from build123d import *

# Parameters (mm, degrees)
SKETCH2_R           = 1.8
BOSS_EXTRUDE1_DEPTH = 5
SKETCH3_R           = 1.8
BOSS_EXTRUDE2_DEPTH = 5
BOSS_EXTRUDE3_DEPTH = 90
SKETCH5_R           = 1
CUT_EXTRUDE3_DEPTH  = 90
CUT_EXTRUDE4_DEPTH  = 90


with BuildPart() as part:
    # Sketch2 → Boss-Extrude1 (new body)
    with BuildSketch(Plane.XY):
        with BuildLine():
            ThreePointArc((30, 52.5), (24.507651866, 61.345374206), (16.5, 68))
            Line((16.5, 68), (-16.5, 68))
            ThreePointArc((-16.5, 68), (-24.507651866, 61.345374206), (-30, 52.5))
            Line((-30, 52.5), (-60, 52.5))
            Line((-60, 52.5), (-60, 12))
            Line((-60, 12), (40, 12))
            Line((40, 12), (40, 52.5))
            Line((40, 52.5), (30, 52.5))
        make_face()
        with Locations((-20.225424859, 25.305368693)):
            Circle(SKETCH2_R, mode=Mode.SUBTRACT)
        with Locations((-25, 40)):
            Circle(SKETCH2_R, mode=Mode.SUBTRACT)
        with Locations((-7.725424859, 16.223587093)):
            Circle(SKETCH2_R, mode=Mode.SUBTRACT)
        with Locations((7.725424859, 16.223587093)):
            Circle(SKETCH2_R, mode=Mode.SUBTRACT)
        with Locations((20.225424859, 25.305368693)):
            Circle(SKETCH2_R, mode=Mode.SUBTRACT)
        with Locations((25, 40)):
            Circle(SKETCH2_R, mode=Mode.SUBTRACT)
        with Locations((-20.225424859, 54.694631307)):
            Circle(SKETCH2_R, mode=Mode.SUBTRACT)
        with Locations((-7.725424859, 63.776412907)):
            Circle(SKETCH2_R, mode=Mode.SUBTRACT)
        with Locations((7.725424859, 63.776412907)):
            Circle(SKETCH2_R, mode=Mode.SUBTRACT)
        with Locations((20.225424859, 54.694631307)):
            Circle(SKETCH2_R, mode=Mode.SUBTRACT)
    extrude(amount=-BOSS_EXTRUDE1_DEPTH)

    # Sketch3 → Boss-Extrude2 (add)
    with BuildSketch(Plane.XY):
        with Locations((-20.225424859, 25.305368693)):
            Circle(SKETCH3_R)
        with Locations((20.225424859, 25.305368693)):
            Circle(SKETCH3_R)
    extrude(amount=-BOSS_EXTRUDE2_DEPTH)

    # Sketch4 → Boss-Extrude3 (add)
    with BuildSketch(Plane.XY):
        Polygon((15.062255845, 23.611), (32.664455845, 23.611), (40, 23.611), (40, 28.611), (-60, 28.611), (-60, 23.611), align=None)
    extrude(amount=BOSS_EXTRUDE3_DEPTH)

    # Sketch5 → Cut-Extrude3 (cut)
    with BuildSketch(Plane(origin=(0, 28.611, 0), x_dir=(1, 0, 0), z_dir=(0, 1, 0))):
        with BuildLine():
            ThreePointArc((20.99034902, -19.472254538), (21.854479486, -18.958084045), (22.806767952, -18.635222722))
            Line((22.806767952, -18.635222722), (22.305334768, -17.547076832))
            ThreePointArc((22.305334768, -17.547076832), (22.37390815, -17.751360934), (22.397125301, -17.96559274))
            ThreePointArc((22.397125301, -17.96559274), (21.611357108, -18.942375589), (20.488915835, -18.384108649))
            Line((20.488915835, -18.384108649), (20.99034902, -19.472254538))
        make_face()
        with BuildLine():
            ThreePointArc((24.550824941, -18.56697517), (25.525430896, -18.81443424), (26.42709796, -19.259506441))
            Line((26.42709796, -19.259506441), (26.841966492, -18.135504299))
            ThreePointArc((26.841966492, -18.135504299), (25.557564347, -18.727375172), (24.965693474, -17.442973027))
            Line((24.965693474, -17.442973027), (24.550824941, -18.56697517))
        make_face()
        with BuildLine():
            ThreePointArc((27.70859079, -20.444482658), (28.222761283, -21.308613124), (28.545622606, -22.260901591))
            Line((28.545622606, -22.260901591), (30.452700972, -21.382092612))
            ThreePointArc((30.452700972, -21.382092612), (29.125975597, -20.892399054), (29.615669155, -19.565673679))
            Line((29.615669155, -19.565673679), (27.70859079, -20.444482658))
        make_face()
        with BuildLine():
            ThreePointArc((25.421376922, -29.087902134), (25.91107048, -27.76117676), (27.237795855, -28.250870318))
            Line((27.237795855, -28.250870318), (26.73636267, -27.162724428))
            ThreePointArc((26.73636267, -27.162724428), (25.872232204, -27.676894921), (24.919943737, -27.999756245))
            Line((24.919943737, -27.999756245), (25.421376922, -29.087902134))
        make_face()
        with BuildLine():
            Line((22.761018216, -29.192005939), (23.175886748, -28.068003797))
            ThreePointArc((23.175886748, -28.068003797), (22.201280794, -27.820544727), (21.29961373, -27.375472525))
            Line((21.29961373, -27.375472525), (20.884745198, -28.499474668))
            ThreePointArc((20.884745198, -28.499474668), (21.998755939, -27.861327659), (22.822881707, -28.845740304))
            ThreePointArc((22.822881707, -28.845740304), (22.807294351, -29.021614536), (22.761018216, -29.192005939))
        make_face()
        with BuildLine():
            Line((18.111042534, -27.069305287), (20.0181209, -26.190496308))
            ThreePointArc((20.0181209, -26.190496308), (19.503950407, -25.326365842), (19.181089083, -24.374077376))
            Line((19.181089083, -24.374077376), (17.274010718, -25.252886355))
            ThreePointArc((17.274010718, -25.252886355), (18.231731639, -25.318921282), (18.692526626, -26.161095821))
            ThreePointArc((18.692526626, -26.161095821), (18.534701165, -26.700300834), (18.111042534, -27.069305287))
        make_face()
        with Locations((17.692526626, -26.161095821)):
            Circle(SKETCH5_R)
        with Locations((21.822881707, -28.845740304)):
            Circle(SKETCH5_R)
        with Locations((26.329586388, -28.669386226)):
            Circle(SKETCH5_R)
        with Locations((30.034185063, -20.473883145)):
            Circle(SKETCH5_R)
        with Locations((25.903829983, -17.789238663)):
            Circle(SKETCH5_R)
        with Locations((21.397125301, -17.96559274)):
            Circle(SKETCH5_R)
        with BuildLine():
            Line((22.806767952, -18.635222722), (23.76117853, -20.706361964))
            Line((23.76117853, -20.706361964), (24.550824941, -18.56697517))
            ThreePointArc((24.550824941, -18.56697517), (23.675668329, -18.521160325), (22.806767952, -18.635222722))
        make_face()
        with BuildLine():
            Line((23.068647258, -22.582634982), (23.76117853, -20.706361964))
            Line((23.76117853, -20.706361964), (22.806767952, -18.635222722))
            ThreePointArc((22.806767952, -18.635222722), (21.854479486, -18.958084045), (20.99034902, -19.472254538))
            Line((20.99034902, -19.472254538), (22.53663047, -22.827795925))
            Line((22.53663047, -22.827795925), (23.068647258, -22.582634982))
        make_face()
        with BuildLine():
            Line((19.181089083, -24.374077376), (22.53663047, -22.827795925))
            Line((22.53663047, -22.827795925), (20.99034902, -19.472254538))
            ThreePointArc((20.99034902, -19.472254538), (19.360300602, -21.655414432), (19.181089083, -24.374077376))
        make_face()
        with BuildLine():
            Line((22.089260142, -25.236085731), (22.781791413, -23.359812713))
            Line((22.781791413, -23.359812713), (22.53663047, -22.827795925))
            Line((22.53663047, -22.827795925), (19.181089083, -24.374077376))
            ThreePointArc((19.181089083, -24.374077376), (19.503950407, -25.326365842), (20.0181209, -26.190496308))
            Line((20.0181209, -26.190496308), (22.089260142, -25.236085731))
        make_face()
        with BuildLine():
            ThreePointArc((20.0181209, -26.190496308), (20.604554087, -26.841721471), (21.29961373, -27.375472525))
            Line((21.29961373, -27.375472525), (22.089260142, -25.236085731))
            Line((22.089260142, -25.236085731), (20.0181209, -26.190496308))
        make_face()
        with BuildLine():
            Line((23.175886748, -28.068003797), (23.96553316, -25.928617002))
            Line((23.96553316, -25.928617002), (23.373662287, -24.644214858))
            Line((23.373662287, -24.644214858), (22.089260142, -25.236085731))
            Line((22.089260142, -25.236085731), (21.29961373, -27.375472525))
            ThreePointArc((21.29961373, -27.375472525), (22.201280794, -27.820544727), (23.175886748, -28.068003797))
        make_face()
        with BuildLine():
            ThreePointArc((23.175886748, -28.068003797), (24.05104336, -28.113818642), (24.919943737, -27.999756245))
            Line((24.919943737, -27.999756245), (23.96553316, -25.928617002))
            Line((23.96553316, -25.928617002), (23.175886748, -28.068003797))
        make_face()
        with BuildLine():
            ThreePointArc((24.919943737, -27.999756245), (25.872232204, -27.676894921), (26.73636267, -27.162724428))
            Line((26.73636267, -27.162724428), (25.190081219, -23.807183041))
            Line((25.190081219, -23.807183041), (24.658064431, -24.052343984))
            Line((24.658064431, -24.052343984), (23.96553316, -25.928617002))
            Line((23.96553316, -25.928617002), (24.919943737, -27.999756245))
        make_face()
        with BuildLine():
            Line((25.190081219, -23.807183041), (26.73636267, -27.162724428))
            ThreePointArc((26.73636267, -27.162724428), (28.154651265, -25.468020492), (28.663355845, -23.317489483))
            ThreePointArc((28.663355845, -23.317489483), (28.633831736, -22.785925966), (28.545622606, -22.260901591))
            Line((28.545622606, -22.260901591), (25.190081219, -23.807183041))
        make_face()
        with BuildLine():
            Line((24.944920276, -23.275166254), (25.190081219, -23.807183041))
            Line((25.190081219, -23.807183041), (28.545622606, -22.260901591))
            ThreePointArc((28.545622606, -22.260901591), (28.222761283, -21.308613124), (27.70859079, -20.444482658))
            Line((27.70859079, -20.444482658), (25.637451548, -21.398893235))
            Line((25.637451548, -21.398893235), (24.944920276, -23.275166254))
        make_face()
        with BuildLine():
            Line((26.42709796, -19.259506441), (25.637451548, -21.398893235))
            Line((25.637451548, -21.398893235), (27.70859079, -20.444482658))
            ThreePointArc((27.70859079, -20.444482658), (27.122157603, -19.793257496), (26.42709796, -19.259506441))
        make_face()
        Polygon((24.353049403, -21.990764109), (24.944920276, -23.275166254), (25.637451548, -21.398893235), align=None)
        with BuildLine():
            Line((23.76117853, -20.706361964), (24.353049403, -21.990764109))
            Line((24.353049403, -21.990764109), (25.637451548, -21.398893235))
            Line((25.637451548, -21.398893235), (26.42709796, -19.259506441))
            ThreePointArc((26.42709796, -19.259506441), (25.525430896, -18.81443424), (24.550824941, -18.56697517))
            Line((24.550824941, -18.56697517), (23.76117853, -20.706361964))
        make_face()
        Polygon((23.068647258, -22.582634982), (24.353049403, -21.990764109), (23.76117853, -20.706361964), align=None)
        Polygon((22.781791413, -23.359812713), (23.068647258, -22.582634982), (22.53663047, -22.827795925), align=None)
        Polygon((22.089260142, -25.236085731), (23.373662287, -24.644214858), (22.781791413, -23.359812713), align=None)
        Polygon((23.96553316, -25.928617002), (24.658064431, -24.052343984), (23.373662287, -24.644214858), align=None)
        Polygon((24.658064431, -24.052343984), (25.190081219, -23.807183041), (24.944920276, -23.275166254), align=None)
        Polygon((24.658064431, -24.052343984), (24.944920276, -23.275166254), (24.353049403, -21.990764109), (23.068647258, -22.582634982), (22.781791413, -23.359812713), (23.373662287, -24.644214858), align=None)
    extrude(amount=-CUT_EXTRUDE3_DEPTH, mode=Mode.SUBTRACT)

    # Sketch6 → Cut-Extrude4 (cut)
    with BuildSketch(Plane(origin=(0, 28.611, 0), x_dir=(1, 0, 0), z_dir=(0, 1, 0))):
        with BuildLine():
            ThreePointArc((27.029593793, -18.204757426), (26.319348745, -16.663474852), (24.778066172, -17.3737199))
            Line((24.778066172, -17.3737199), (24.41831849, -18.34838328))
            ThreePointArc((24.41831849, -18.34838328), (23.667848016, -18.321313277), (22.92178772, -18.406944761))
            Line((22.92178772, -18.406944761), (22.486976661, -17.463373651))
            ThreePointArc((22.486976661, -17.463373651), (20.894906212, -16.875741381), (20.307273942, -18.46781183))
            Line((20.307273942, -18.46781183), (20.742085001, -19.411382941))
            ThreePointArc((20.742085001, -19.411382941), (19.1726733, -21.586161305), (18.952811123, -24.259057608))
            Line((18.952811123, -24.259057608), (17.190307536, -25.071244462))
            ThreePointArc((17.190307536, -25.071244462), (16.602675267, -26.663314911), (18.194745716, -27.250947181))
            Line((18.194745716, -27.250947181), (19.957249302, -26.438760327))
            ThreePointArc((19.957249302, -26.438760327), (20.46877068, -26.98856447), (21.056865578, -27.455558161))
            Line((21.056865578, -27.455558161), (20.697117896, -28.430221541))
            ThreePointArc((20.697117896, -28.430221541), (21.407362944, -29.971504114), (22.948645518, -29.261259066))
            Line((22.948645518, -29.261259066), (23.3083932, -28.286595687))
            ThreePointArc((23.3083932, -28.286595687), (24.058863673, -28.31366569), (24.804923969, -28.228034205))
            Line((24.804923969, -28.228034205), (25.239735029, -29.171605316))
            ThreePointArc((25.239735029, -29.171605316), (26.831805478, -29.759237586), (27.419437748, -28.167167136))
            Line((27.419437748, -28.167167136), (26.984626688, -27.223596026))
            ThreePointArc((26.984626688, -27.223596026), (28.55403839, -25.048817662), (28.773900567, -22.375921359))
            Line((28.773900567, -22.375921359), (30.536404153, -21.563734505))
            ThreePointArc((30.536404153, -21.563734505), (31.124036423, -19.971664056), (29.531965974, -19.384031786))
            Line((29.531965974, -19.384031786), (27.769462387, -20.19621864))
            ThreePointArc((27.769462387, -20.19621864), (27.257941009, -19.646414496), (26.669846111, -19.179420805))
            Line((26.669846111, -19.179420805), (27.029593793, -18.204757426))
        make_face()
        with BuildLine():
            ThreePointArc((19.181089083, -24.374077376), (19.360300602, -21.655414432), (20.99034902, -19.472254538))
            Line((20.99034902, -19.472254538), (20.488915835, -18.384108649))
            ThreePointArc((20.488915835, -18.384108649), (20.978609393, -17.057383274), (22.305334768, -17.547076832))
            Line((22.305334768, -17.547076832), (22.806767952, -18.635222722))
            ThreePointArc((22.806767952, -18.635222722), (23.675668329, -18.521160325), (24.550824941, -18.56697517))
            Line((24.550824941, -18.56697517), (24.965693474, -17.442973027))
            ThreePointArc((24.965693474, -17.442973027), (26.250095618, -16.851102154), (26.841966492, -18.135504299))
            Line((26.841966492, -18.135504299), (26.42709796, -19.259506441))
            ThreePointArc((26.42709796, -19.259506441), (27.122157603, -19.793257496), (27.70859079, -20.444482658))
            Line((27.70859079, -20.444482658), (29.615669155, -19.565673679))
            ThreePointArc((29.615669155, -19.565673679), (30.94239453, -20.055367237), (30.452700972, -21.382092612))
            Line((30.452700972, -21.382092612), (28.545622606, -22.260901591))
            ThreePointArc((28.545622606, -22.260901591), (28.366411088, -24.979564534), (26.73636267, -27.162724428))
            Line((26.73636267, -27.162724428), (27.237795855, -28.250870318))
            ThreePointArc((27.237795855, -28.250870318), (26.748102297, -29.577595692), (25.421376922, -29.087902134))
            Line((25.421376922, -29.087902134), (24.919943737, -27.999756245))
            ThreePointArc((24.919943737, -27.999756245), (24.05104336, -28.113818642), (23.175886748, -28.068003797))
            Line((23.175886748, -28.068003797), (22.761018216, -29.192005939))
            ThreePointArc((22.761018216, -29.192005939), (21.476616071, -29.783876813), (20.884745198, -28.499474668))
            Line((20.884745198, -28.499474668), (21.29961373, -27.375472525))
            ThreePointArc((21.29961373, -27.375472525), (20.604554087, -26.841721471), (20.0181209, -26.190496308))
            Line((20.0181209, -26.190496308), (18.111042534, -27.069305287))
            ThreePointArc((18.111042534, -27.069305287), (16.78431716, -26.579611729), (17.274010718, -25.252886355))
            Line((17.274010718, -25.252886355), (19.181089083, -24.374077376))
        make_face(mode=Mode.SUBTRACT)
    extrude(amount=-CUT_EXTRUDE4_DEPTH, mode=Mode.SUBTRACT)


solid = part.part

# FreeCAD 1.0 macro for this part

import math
import FreeCAD as App
import Part
import Sketcher

V = App.Vector
Q = App.Units.Quantity

doc = App.newDocument("Part")
body = doc.addObject("PartDesign::Body", "Body")

sketch1 = body.newObject("Sketcher::SketchObject", "Sketch")
sketch1.AttachmentSupport = (doc.getObject("XY_Plane"), [""])
sketch1.MapMode = "FlatFace"
sketch1.addGeometry(Part.ArcOfCircle(Part.Circle(V(0, 40, 0), V(0, 0, 1), 32.5), math.radians(22.619865), math.radians(59.489763)), False)
sketch1.addGeometry(Part.LineSegment(V(16.5, 68, 0), V(-16.5, 68, 0)), False)
sketch1.addGeometry(Part.ArcOfCircle(Part.Circle(V(0, 40, 0), V(0, 0, 1), 32.5), math.radians(120.510237), math.radians(157.380135)), False)
sketch1.addGeometry(Part.LineSegment(V(-30, 52.5, 0), V(-60, 52.5, 0)), False)
sketch1.addGeometry(Part.LineSegment(V(-60, 52.5, 0), V(-60, 12, 0)), False)
sketch1.addGeometry(Part.LineSegment(V(-60, 12, 0), V(40, 12, 0)), False)
sketch1.addGeometry(Part.LineSegment(V(40, 12, 0), V(40, 52.5, 0)), False)
sketch1.addGeometry(Part.LineSegment(V(40, 52.5, 0), V(30, 52.5, 0)), False)
sketch1.addGeometry(Part.Circle(V(-20.225425, 25.305369, 0), V(0, 0, 1), 1.8), False)
sketch1.addGeometry(Part.Circle(V(-7.725425, 16.223587, 0), V(0, 0, 1), 1.8), False)
sketch1.addGeometry(Part.Circle(V(7.725425, 16.223587, 0), V(0, 0, 1), 1.8), False)
sketch1.addGeometry(Part.Circle(V(20.225425, 25.305369, 0), V(0, 0, 1), 1.8), False)
sketch1.addGeometry(Part.Circle(V(-25, 40, 0), V(0, 0, 1), 1.8), False)
sketch1.addGeometry(Part.Circle(V(-20.225425, 54.694631, 0), V(0, 0, 1), 1.8), False)
sketch1.addGeometry(Part.Circle(V(-7.725425, 63.776413, 0), V(0, 0, 1), 1.8), False)
sketch1.addGeometry(Part.Circle(V(25, 40, 0), V(0, 0, 1), 1.8), False)
sketch1.addGeometry(Part.Circle(V(7.725425, 63.776413, 0), V(0, 0, 1), 1.8), False)
sketch1.addGeometry(Part.Circle(V(20.225425, 54.694631, 0), V(0, 0, 1), 1.8), False)
sketch1.addConstraint(Sketcher.Constraint("Coincident", 0, 2, 1, 1))
sketch1.addConstraint(Sketcher.Constraint("Coincident", 1, 2, 2, 1))
sketch1.addConstraint(Sketcher.Constraint("Coincident", 2, 2, 3, 1))
sketch1.addConstraint(Sketcher.Constraint("Coincident", 3, 2, 4, 1))
sketch1.addConstraint(Sketcher.Constraint("Coincident", 4, 2, 5, 1))
sketch1.addConstraint(Sketcher.Constraint("Coincident", 5, 2, 6, 1))
sketch1.addConstraint(Sketcher.Constraint("Coincident", 6, 2, 7, 1))
sketch1.addConstraint(Sketcher.Constraint("Coincident", 7, 2, 0, 1))
sketch1.addConstraint(Sketcher.Constraint("Horizontal", 1))
sketch1.addConstraint(Sketcher.Constraint("Horizontal", 3))
sketch1.addConstraint(Sketcher.Constraint("Vertical", 4))
sketch1.addConstraint(Sketcher.Constraint("Horizontal", 5))
sketch1.addConstraint(Sketcher.Constraint("Vertical", 6))
sketch1.addConstraint(Sketcher.Constraint("Horizontal", 7))
sketch1.addConstraint(Sketcher.Constraint("Coincident", 2, 3, 0, 3))
sketch1.addConstraint(Sketcher.Constraint("Equal", 0, 2))
sketch1.addConstraint(Sketcher.Constraint("Equal", 8, 9))
sketch1.addConstraint(Sketcher.Constraint("Equal", 9, 10))
sketch1.addConstraint(Sketcher.Constraint("Equal", 10, 11))
sketch1.addConstraint(Sketcher.Constraint("Equal", 11, 12))
sketch1.addConstraint(Sketcher.Constraint("Equal", 12, 13))
sketch1.addConstraint(Sketcher.Constraint("Equal", 13, 14))
sketch1.addConstraint(Sketcher.Constraint("Equal", 14, 15))
sketch1.addConstraint(Sketcher.Constraint("Equal", 15, 16))
sketch1.addConstraint(Sketcher.Constraint("Equal", 16, 17))
sketch1.addConstraint(Sketcher.Constraint("Symmetric", 9, 3, 10, 3, -2))
sketch1.addConstraint(Sketcher.Constraint("Symmetric", 8, 3, 11, 3, -2))
sketch1.addConstraint(Sketcher.Constraint("Symmetric", 12, 3, 15, 3, -2))
sketch1.addConstraint(Sketcher.Constraint("Symmetric", 14, 3, 16, 3, -2))
sketch1.addConstraint(Sketcher.Constraint("Symmetric", 13, 3, 17, 3, -2))
sketch1.addConstraint(Sketcher.Constraint("Symmetric", 2, 2, 7, 2, -2))
sketch1.addConstraint(Sketcher.Constraint("Horizontal", 2, 3, 12, 3))
sketch1.addConstraint(Sketcher.Constraint("Vertical", 8, 3, 13, 3))
sketch1.addConstraint(Sketcher.Constraint("Vertical", 9, 3, 14, 3))
sketch1.addConstraint(Sketcher.Constraint("Diameter", 8, Q("3.6 mm")))
sketch1.addConstraint(Sketcher.Constraint("Radius", 0, Q("32.5 mm")))
sketch1.addConstraint(Sketcher.Constraint("DistanceX", 1, 2, 1, 1, Q("33 mm")))
sketch1.addConstraint(Sketcher.Constraint("DistanceX", 3, 2, 3, 1, Q("30 mm")))
sketch1.addConstraint(Sketcher.Constraint("DistanceX", 5, 1, 5, 2, Q("100 mm")))
sketch1.addConstraint(Sketcher.Constraint("DistanceX", 7, 2, 7, 1, Q("10 mm")))
sketch1.addConstraint(Sketcher.Constraint("DistanceY", 4, 2, 4, 1, Q("40.5 mm")))
sketch1.addConstraint(Sketcher.Constraint("DistanceY", -1, 1, 0, 3, Q("40 mm")))
sketch1.addConstraint(Sketcher.Constraint("DistanceX", 12, 3, -1, 1, Q("25 mm")))
sketch1.addConstraint(Sketcher.Constraint("DistanceX", 8, 3, 9, 3, Q("12.5 mm")))
sketch1.addConstraint(Sketcher.Constraint("DistanceY", -1, 1, 8, 3, Q("25.305369 mm")))
sketch1.addConstraint(Sketcher.Constraint("DistanceY", -1, 1, 13, 3, Q("54.694631 mm")))
sketch1.addConstraint(Sketcher.Constraint("DistanceY", 9, 3, 8, 3, Q("9.081782 mm")))
sketch1.addConstraint(Sketcher.Constraint("DistanceX", 9, 3, 10, 3, Q("15.45085 mm")))
sketch1.addConstraint(Sketcher.Constraint("DistanceY", 13, 3, 14, 3, Q("9.081782 mm")))
pad1 = body.newObject("PartDesign::Pad", "Pad")
pad1.Profile = sketch1
pad1.Length = 5
pad1.Reversed = True

sketch2 = body.newObject("Sketcher::SketchObject", "Sketch001")
sketch2.AttachmentSupport = (doc.getObject("XY_Plane"), [""])
sketch2.MapMode = "FlatFace"
sketch2.addGeometry(Part.Circle(V(-20.225425, 25.305369, 0), V(0, 0, 1), 1.8), False)
sketch2.addGeometry(Part.Circle(V(20.225425, 25.305369, 0), V(0, 0, 1), 1.8), False)
sketch2.addConstraint(Sketcher.Constraint("Equal", 0, 1))
sketch2.addConstraint(Sketcher.Constraint("Symmetric", 0, 3, 1, 3, -2))
sketch2.addConstraint(Sketcher.Constraint("Diameter", 0, Q("3.6 mm")))
sketch2.addConstraint(Sketcher.Constraint("DistanceY", -1, 1, 0, 3, Q("25.305369 mm")))
sketch2.addConstraint(Sketcher.Constraint("DistanceX", 0, 3, 1, 3, Q("40.45085 mm")))
pad2 = body.newObject("PartDesign::Pad", "Pad001")
pad2.Profile = sketch2
pad2.Length = 5
pad2.Reversed = True

sketch3 = body.newObject("Sketcher::SketchObject", "Sketch002")
sketch3.AttachmentSupport = (doc.getObject("XY_Plane"), [""])
sketch3.MapMode = "FlatFace"
sketch3.addGeometry(Part.LineSegment(V(40, 23.611, 0), V(40, 28.611, 0)), False)
sketch3.addGeometry(Part.LineSegment(V(40, 28.611, 0), V(-60, 28.611, 0)), False)
sketch3.addGeometry(Part.LineSegment(V(-60, 28.611, 0), V(-60, 23.611, 0)), False)
sketch3.addGeometry(Part.LineSegment(V(-60, 23.611, 0), V(40, 23.611, 0)), False)
sketch3.addConstraint(Sketcher.Constraint("Coincident", 0, 2, 1, 1))
sketch3.addConstraint(Sketcher.Constraint("Coincident", 1, 2, 2, 1))
sketch3.addConstraint(Sketcher.Constraint("Coincident", 2, 2, 3, 1))
sketch3.addConstraint(Sketcher.Constraint("Coincident", 3, 2, 0, 1))
sketch3.addConstraint(Sketcher.Constraint("Vertical", 0))
sketch3.addConstraint(Sketcher.Constraint("Horizontal", 1))
sketch3.addConstraint(Sketcher.Constraint("Vertical", 2))
sketch3.addConstraint(Sketcher.Constraint("Horizontal", 3))
sketch3.addConstraint(Sketcher.Constraint("DistanceX", 1, 2, 1, 1, Q("100 mm")))
sketch3.addConstraint(Sketcher.Constraint("DistanceY", 0, 1, 0, 2, Q("5 mm")))
sketch3.addConstraint(Sketcher.Constraint("DistanceX", -1, 1, 0, 2, Q("40 mm")))
sketch3.addConstraint(Sketcher.Constraint("DistanceY", -1, 1, 0, 2, Q("28.611 mm")))
pad3 = body.newObject("PartDesign::Pad", "Pad002")
pad3.Profile = sketch3
pad3.Length = 90

sketch4 = body.newObject("Sketcher::SketchObject", "Sketch003")
sketch4.AttachmentSupport = (doc.getObject("XZ_Plane"), [""])
sketch4.MapMode = "FlatFace"
sketch4.AttachmentOffset = App.Placement(V(0, 0, -28.611), App.Rotation())
sketch4.addGeometry(Part.LineSegment(V(22.806768, 18.635223, 0), V(22.305335, 17.547077, 0)), False)
sketch4.addGeometry(Part.ArcOfCircle(Part.Circle(V(21.397125, 17.965593, 0), V(0, 0, 1), 1), math.radians(155.259074), math.radians(335.259074)), False)
sketch4.addGeometry(Part.LineSegment(V(20.488916, 18.384109, 0), V(20.990349, 19.472255, 0)), False)
sketch4.addGeometry(Part.ArcOfCircle(Part.Circle(V(23.863356, 23.317489, 0), V(0, 0, 1), 4.8), math.radians(167.283773), math.radians(233.234375)), False)
sketch4.addGeometry(Part.LineSegment(V(19.181089, 24.374077, 0), V(17.274011, 25.252886, 0)), False)
sketch4.addGeometry(Part.ArcOfCircle(Part.Circle(V(17.692527, 26.161096, 0), V(0, 0, 1), 1), math.radians(65.259074), math.radians(245.259074)), False)
sketch4.addGeometry(Part.LineSegment(V(18.111043, 27.069305, 0), V(20.018121, 26.190496, 0)), False)
sketch4.addGeometry(Part.ArcOfCircle(Part.Circle(V(23.863356, 23.317489, 0), V(0, 0, 1), 4.8), math.radians(122.283773), math.radians(143.234375)), False)
sketch4.addGeometry(Part.LineSegment(V(21.299614, 27.375473, 0), V(20.884745, 28.499475, 0)), False)
sketch4.addGeometry(Part.ArcOfCircle(Part.Circle(V(21.822882, 28.84574, 0), V(0, 0, 1), 1), math.radians(20.259074), math.radians(200.259074)), False)
sketch4.addGeometry(Part.LineSegment(V(22.761018, 29.192006, 0), V(23.175887, 28.068004, 0)), False)
sketch4.addGeometry(Part.ArcOfCircle(Part.Circle(V(23.863356, 23.317489, 0), V(0, 0, 1), 4.8), math.radians(77.283773), math.radians(98.234375)), False)
sketch4.addGeometry(Part.LineSegment(V(24.919944, 27.999756, 0), V(25.421377, 29.087902, 0)), False)
sketch4.addGeometry(Part.ArcOfCircle(Part.Circle(V(26.329586, 28.669386, 0), V(0, 0, 1), 1), math.radians(-24.740926), math.radians(155.259074)), False)
sketch4.addGeometry(Part.LineSegment(V(27.237796, 28.25087, 0), V(26.736363, 27.162724, 0)), False)
sketch4.addGeometry(Part.ArcOfCircle(Part.Circle(V(23.863356, 23.317489, 0), V(0, 0, 1), 4.8), math.radians(0), math.radians(53.234375)), False)
sketch4.addGeometry(Part.ArcOfCircle(Part.Circle(V(23.863356, 23.317489, 0), V(0, 0, 1), 4.8), math.radians(-12.716227), math.radians(0)), False)
sketch4.addGeometry(Part.LineSegment(V(28.545623, 22.260902, 0), V(30.452701, 21.382093, 0)), False)
sketch4.addGeometry(Part.ArcOfCircle(Part.Circle(V(30.034185, 20.473883, 0), V(0, 0, 1), 1), math.radians(-114.740926), math.radians(65.259074)), False)
sketch4.addGeometry(Part.LineSegment(V(29.615669, 19.565674, 0), V(27.708591, 20.444483, 0)), False)
sketch4.addGeometry(Part.ArcOfCircle(Part.Circle(V(23.863356, 23.31749, 0), V(0, 0, 1), 4.8), math.radians(-57.716227), math.radians(-36.765625)), False)
sketch4.addGeometry(Part.LineSegment(V(26.427098, 19.259506, 0), V(26.841966, 18.135504, 0)), False)
sketch4.addGeometry(Part.ArcOfCircle(Part.Circle(V(25.90383, 17.789239, 0), V(0, 0, 1), 1), math.radians(-159.740926), math.radians(20.259074)), False)
sketch4.addGeometry(Part.LineSegment(V(24.965693, 17.442973, 0), V(24.550825, 18.566975, 0)), False)
sketch4.addGeometry(Part.ArcOfCircle(Part.Circle(V(23.863356, 23.317489, 0), V(0, 0, 1), 4.8), math.radians(-102.716227), math.radians(-81.765625)), False)
sketch4.addConstraint(Sketcher.Constraint("Tangent", 0, 2, 1, 2))
sketch4.addConstraint(Sketcher.Constraint("Tangent", 1, 1, 2, 1))
sketch4.addConstraint(Sketcher.Constraint("Coincident", 2, 2, 3, 2))
sketch4.addConstraint(Sketcher.Constraint("Coincident", 3, 1, 4, 1))
sketch4.addConstraint(Sketcher.Constraint("Tangent", 4, 2, 5, 2))
sketch4.addConstraint(Sketcher.Constraint("Tangent", 5, 1, 6, 1))
sketch4.addConstraint(Sketcher.Constraint("Coincident", 6, 2, 7, 2))
sketch4.addConstraint(Sketcher.Constraint("Coincident", 7, 1, 8, 1))
sketch4.addConstraint(Sketcher.Constraint("Tangent", 8, 2, 9, 2))
sketch4.addConstraint(Sketcher.Constraint("Tangent", 9, 1, 10, 1))
sketch4.addConstraint(Sketcher.Constraint("Coincident", 10, 2, 11, 2))
sketch4.addConstraint(Sketcher.Constraint("Coincident", 11, 1, 12, 1))
sketch4.addConstraint(Sketcher.Constraint("Tangent", 12, 2, 13, 2))
sketch4.addConstraint(Sketcher.Constraint("Tangent", 13, 1, 14, 1))
sketch4.addConstraint(Sketcher.Constraint("Coincident", 14, 2, 15, 2))
sketch4.addConstraint(Sketcher.Constraint("Tangent", 15, 1, 16, 2))
sketch4.addConstraint(Sketcher.Constraint("Coincident", 16, 1, 17, 1))
sketch4.addConstraint(Sketcher.Constraint("Tangent", 17, 2, 18, 2))
sketch4.addConstraint(Sketcher.Constraint("Tangent", 18, 1, 19, 1))
sketch4.addConstraint(Sketcher.Constraint("Coincident", 19, 2, 20, 2))
sketch4.addConstraint(Sketcher.Constraint("Coincident", 20, 1, 21, 1))
sketch4.addConstraint(Sketcher.Constraint("Tangent", 21, 2, 22, 2))
sketch4.addConstraint(Sketcher.Constraint("Tangent", 22, 1, 23, 1))
sketch4.addConstraint(Sketcher.Constraint("Coincident", 23, 2, 24, 2))
sketch4.addConstraint(Sketcher.Constraint("Coincident", 24, 1, 0, 1))
sketch4.addConstraint(Sketcher.Constraint("Coincident", 7, 3, 3, 3))
sketch4.addConstraint(Sketcher.Constraint("Coincident", 11, 3, 3, 3))
sketch4.addConstraint(Sketcher.Constraint("Coincident", 15, 3, 3, 3))
sketch4.addConstraint(Sketcher.Constraint("Coincident", 20, 3, 3, 3))
sketch4.addConstraint(Sketcher.Constraint("Coincident", 24, 3, 3, 3))
sketch4.addConstraint(Sketcher.Constraint("Equal", 1, 5))
sketch4.addConstraint(Sketcher.Constraint("Equal", 3, 7))
sketch4.addConstraint(Sketcher.Constraint("Equal", 5, 9))
sketch4.addConstraint(Sketcher.Constraint("Equal", 7, 11))
sketch4.addConstraint(Sketcher.Constraint("Equal", 9, 13))
sketch4.addConstraint(Sketcher.Constraint("Equal", 11, 15))
sketch4.addConstraint(Sketcher.Constraint("Equal", 15, 16))
sketch4.addConstraint(Sketcher.Constraint("Equal", 13, 18))
sketch4.addConstraint(Sketcher.Constraint("Equal", 16, 20))
sketch4.addConstraint(Sketcher.Constraint("Equal", 18, 22))
sketch4.addConstraint(Sketcher.Constraint("Equal", 20, 24))
sketch4.addConstraint(Sketcher.Constraint("Parallel", 0, 2))
sketch4.addConstraint(Sketcher.Constraint("Perpendicular", 2, 4))
sketch4.addConstraint(Sketcher.Constraint("Parallel", 4, 6))
sketch4.addConstraint(Sketcher.Constraint("Parallel", 8, 10))
sketch4.addConstraint(Sketcher.Constraint("Perpendicular", 6, 12))
sketch4.addConstraint(Sketcher.Constraint("Parallel", 12, 14))
sketch4.addConstraint(Sketcher.Constraint("Perpendicular", 14, 17))
sketch4.addConstraint(Sketcher.Constraint("Parallel", 17, 19))
sketch4.addConstraint(Sketcher.Constraint("Parallel", 10, 21))
sketch4.addConstraint(Sketcher.Constraint("Parallel", 21, 23))
sketch4.addConstraint(Sketcher.Constraint("Horizontal", 24, 3, 15, 1))
sketch4.addConstraint(Sketcher.Constraint("Equal", 0, 2))
sketch4.addConstraint(Sketcher.Constraint("Equal", 4, 6))
sketch4.addConstraint(Sketcher.Constraint("Equal", 2, 8))
sketch4.addConstraint(Sketcher.Constraint("Equal", 8, 10))
sketch4.addConstraint(Sketcher.Constraint("Equal", 10, 12))
sketch4.addConstraint(Sketcher.Constraint("Equal", 12, 14))
sketch4.addConstraint(Sketcher.Constraint("Equal", 6, 17))
sketch4.addConstraint(Sketcher.Constraint("Equal", 17, 19))
sketch4.addConstraint(Sketcher.Constraint("Equal", 14, 21))
sketch4.addConstraint(Sketcher.Constraint("Equal", 21, 23))
sketch4.addConstraint(Sketcher.Constraint("Radius", 1, Q("1 mm")))
sketch4.addConstraint(Sketcher.Constraint("Radius", 3, Q("4.8 mm")))
sketch4.addConstraint(Sketcher.Constraint("DistanceY", -1, 1, 16, 1, Q("22.260902 mm")))
sketch4.addConstraint(Sketcher.Constraint("DistanceX", -1, 1, 17, 2, Q("30.452701 mm")))
sketch4.addConstraint(Sketcher.Constraint("DistanceX", 5, 3, 1, 3, Q("3.704599 mm")))
sketch4.addConstraint(Sketcher.Constraint("DistanceY", 5, 3, 6, 2, Q("0.0294 mm")))
sketch4.addConstraint(Sketcher.Constraint("DistanceX", 10, 2, 13, 3, Q("3.1537 mm")))
sketch4.addConstraint(Sketcher.Constraint("DistanceY", 10, 2, 12, 2, Q("1.019898 mm")))
pocket1 = body.newObject("PartDesign::Pocket", "Pocket")
pocket1.Profile = sketch4
pocket1.Length = 90
pocket1.Reversed = True

sketch5 = body.newObject("Sketcher::SketchObject", "Sketch004")
sketch5.AttachmentSupport = (doc.getObject("XZ_Plane"), [""])
sketch5.MapMode = "FlatFace"
sketch5.AttachmentOffset = App.Placement(V(0, 0, -28.611), App.Rotation())
sketch5.addGeometry(Part.ArcOfCircle(Part.Circle(V(25.90383, 17.789239, 0), V(0, 0, 1), 1.2), math.radians(-159.740926), math.radians(20.259074)), False)
sketch5.addGeometry(Part.LineSegment(V(24.778066, 17.37372, 0), V(24.418318, 18.348383, 0)), False)
sketch5.addGeometry(Part.ArcOfCircle(Part.Circle(V(23.863356, 23.31749, 0), V(0, 0, 1), 5), math.radians(-100.854386), math.radians(-83.627466)), False)
sketch5.addGeometry(Part.LineSegment(V(22.921788, 18.406945, 0), V(22.486977, 17.463374, 0)), False)
sketch5.addGeometry(Part.ArcOfCircle(Part.Circle(V(21.397125, 17.965593, 0), V(0, 0, 1), 1.2), math.radians(155.259074), math.radians(335.259074)), False)
sketch5.addGeometry(Part.LineSegment(V(20.307274, 18.467812, 0), V(20.742085, 19.411383, 0)), False)
sketch5.addGeometry(Part.ArcOfCircle(Part.Circle(V(23.863356, 23.317489, 0), V(0, 0, 1), 5), math.radians(169.145614), math.radians(231.372534)), False)
sketch5.addGeometry(Part.LineSegment(V(18.952811, 24.259058, 0), V(17.190308, 25.071244, 0)), False)
sketch5.addGeometry(Part.ArcOfCircle(Part.Circle(V(17.692527, 26.161096, 0), V(0, 0, 1), 1.2), math.radians(65.259074), math.radians(245.259074)), False)
sketch5.addGeometry(Part.LineSegment(V(18.194746, 27.250947, 0), V(19.957249, 26.43876, 0)), False)
sketch5.addGeometry(Part.ArcOfCircle(Part.Circle(V(23.863356, 23.317489, 0), V(0, 0, 1), 5), math.radians(124.145614), math.radians(141.372534)), False)
sketch5.addGeometry(Part.LineSegment(V(21.056866, 27.455558, 0), V(20.697118, 28.430222, 0)), False)
sketch5.addGeometry(Part.ArcOfCircle(Part.Circle(V(21.822882, 28.84574, 0), V(0, 0, 1), 1.2), math.radians(20.259074), math.radians(200.259074)), False)
sketch5.addGeometry(Part.LineSegment(V(22.948646, 29.261259, 0), V(23.308393, 28.286596, 0)), False)
sketch5.addGeometry(Part.ArcOfCircle(Part.Circle(V(23.863356, 23.317489, 0), V(0, 0, 1), 5), math.radians(79.145614), math.radians(96.372534)), False)
sketch5.addGeometry(Part.LineSegment(V(24.804924, 28.228034, 0), V(25.239735, 29.171605, 0)), False)
sketch5.addGeometry(Part.ArcOfCircle(Part.Circle(V(26.329586, 28.669386, 0), V(0, 0, 1), 1.2), math.radians(-24.740926), math.radians(155.259074)), False)
sketch5.addGeometry(Part.LineSegment(V(27.419438, 28.167167, 0), V(26.984627, 27.223596, 0)), False)
sketch5.addGeometry(Part.ArcOfCircle(Part.Circle(V(23.863356, 23.317489, 0), V(0, 0, 1), 5), math.radians(-10.854386), math.radians(51.372534)), False)
sketch5.addGeometry(Part.LineSegment(V(28.773901, 22.375921, 0), V(30.536404, 21.563735, 0)), False)
sketch5.addGeometry(Part.ArcOfCircle(Part.Circle(V(30.034185, 20.473883, 0), V(0, 0, 1), 1.2), math.radians(-114.740926), math.radians(65.259074)), False)
sketch5.addGeometry(Part.LineSegment(V(29.531966, 19.384032, 0), V(27.769462, 20.196219, 0)), False)
sketch5.addGeometry(Part.ArcOfCircle(Part.Circle(V(23.863356, 23.317489, 0), V(0, 0, 1), 5), math.radians(-55.854386), math.radians(-38.627466)), False)
sketch5.addGeometry(Part.LineSegment(V(26.669846, 19.179421, 0), V(27.029594, 18.204757, 0)), False)
sketch5.addGeometry(Part.LineSegment(V(17.274011, 25.252886, 0), V(19.181089, 24.374077, 0)), False)
sketch5.addGeometry(Part.ArcOfCircle(Part.Circle(V(23.863356, 23.317489, 0), V(0, 0, 1), 4.8), math.radians(167.283773), math.radians(233.234375)), False)
sketch5.addGeometry(Part.LineSegment(V(20.990349, 19.472255, 0), V(20.488916, 18.384109, 0)), False)
sketch5.addGeometry(Part.ArcOfCircle(Part.Circle(V(21.397125, 17.965593, 0), V(0, 0, 1), 1), math.radians(155.259074), math.radians(335.259074)), False)
sketch5.addGeometry(Part.LineSegment(V(22.305335, 17.547077, 0), V(22.806768, 18.635223, 0)), False)
sketch5.addGeometry(Part.ArcOfCircle(Part.Circle(V(23.863356, 23.317489, 0), V(0, 0, 1), 4.8), math.radians(-102.716227), math.radians(-81.765625)), False)
sketch5.addGeometry(Part.LineSegment(V(24.550825, 18.566975, 0), V(24.965693, 17.442973, 0)), False)
sketch5.addGeometry(Part.ArcOfCircle(Part.Circle(V(25.90383, 17.789239, 0), V(0, 0, 1), 1), math.radians(-159.740926), math.radians(20.259074)), False)
sketch5.addGeometry(Part.LineSegment(V(26.841966, 18.135504, 0), V(26.427098, 19.259506, 0)), False)
sketch5.addGeometry(Part.ArcOfCircle(Part.Circle(V(23.863356, 23.31749, 0), V(0, 0, 1), 4.8), math.radians(-57.716227), math.radians(-36.765625)), False)
sketch5.addGeometry(Part.LineSegment(V(27.708591, 20.444483, 0), V(29.615669, 19.565674, 0)), False)
sketch5.addGeometry(Part.ArcOfCircle(Part.Circle(V(30.034185, 20.473883, 0), V(0, 0, 1), 1), math.radians(-114.740926), math.radians(65.259074)), False)
sketch5.addGeometry(Part.LineSegment(V(30.452701, 21.382093, 0), V(28.545623, 22.260902, 0)), False)
sketch5.addGeometry(Part.ArcOfCircle(Part.Circle(V(23.863356, 23.317489, 0), V(0, 0, 1), 4.8), math.radians(-12.716227), math.radians(53.234375)), False)
sketch5.addGeometry(Part.LineSegment(V(26.736363, 27.162724, 0), V(27.237796, 28.25087, 0)), False)
sketch5.addGeometry(Part.ArcOfCircle(Part.Circle(V(26.329586, 28.669386, 0), V(0, 0, 1), 1), math.radians(-24.740926), math.radians(155.259074)), False)
sketch5.addGeometry(Part.LineSegment(V(25.421377, 29.087902, 0), V(24.919944, 27.999756, 0)), False)
sketch5.addGeometry(Part.ArcOfCircle(Part.Circle(V(23.863356, 23.317489, 0), V(0, 0, 1), 4.8), math.radians(77.283773), math.radians(98.234375)), False)
sketch5.addGeometry(Part.LineSegment(V(23.175887, 28.068004, 0), V(22.761018, 29.192006, 0)), False)
sketch5.addGeometry(Part.ArcOfCircle(Part.Circle(V(21.822882, 28.84574, 0), V(0, 0, 1), 1), math.radians(20.259074), math.radians(200.259074)), False)
sketch5.addGeometry(Part.LineSegment(V(20.884745, 28.499475, 0), V(21.299614, 27.375473, 0)), False)
sketch5.addGeometry(Part.ArcOfCircle(Part.Circle(V(23.863356, 23.317489, 0), V(0, 0, 1), 4.8), math.radians(122.283773), math.radians(143.234375)), False)
sketch5.addGeometry(Part.LineSegment(V(20.018121, 26.190496, 0), V(18.111043, 27.069305, 0)), False)
sketch5.addGeometry(Part.ArcOfCircle(Part.Circle(V(17.692527, 26.161096, 0), V(0, 0, 1), 1), math.radians(65.259074), math.radians(245.259074)), False)
sketch5.addConstraint(Sketcher.Constraint("Tangent", 0, 1, 1, 1))
sketch5.addConstraint(Sketcher.Constraint("Coincident", 1, 2, 2, 2))
sketch5.addConstraint(Sketcher.Constraint("Coincident", 2, 1, 3, 1))
sketch5.addConstraint(Sketcher.Constraint("Tangent", 3, 2, 4, 2))
sketch5.addConstraint(Sketcher.Constraint("Tangent", 4, 1, 5, 1))
sketch5.addConstraint(Sketcher.Constraint("Coincident", 5, 2, 6, 2))
sketch5.addConstraint(Sketcher.Constraint("Coincident", 6, 1, 7, 1))
sketch5.addConstraint(Sketcher.Constraint("Tangent", 7, 2, 8, 2))
sketch5.addConstraint(Sketcher.Constraint("Tangent", 8, 1, 9, 1))
sketch5.addConstraint(Sketcher.Constraint("Coincident", 9, 2, 10, 2))
sketch5.addConstraint(Sketcher.Constraint("Coincident", 10, 1, 11, 1))
sketch5.addConstraint(Sketcher.Constraint("Tangent", 11, 2, 12, 2))
sketch5.addConstraint(Sketcher.Constraint("Tangent", 12, 1, 13, 1))
sketch5.addConstraint(Sketcher.Constraint("Coincident", 13, 2, 14, 2))
sketch5.addConstraint(Sketcher.Constraint("Coincident", 14, 1, 15, 1))
sketch5.addConstraint(Sketcher.Constraint("Tangent", 15, 2, 16, 2))
sketch5.addConstraint(Sketcher.Constraint("Tangent", 16, 1, 17, 1))
sketch5.addConstraint(Sketcher.Constraint("Coincident", 17, 2, 18, 2))
sketch5.addConstraint(Sketcher.Constraint("Coincident", 18, 1, 19, 1))
sketch5.addConstraint(Sketcher.Constraint("Tangent", 19, 2, 20, 2))
sketch5.addConstraint(Sketcher.Constraint("Tangent", 20, 1, 21, 1))
sketch5.addConstraint(Sketcher.Constraint("Coincident", 21, 2, 22, 2))
sketch5.addConstraint(Sketcher.Constraint("Coincident", 22, 1, 23, 1))
sketch5.addConstraint(Sketcher.Constraint("Tangent", 23, 2, 0, 2))
sketch5.addConstraint(Sketcher.Constraint("Coincident", 24, 2, 25, 1))
sketch5.addConstraint(Sketcher.Constraint("Coincident", 25, 2, 26, 1))
sketch5.addConstraint(Sketcher.Constraint("Tangent", 26, 2, 27, 1))
sketch5.addConstraint(Sketcher.Constraint("Tangent", 27, 2, 28, 1))
sketch5.addConstraint(Sketcher.Constraint("Coincident", 28, 2, 29, 1))
sketch5.addConstraint(Sketcher.Constraint("Coincident", 29, 2, 30, 1))
sketch5.addConstraint(Sketcher.Constraint("Tangent", 30, 2, 31, 1))
sketch5.addConstraint(Sketcher.Constraint("Tangent", 31, 2, 32, 1))
sketch5.addConstraint(Sketcher.Constraint("Coincident", 32, 2, 33, 1))
sketch5.addConstraint(Sketcher.Constraint("Coincident", 33, 2, 34, 1))
sketch5.addConstraint(Sketcher.Constraint("Tangent", 34, 2, 35, 1))
sketch5.addConstraint(Sketcher.Constraint("Tangent", 35, 2, 36, 1))
sketch5.addConstraint(Sketcher.Constraint("Coincident", 36, 2, 37, 1))
sketch5.addConstraint(Sketcher.Constraint("Coincident", 37, 2, 38, 1))
sketch5.addConstraint(Sketcher.Constraint("Tangent", 38, 2, 39, 1))
sketch5.addConstraint(Sketcher.Constraint("Tangent", 39, 2, 40, 1))
sketch5.addConstraint(Sketcher.Constraint("Coincident", 40, 2, 41, 1))
sketch5.addConstraint(Sketcher.Constraint("Coincident", 41, 2, 42, 1))
sketch5.addConstraint(Sketcher.Constraint("Tangent", 42, 2, 43, 1))
sketch5.addConstraint(Sketcher.Constraint("Tangent", 43, 2, 44, 1))
sketch5.addConstraint(Sketcher.Constraint("Coincident", 44, 2, 45, 1))
sketch5.addConstraint(Sketcher.Constraint("Coincident", 45, 2, 46, 1))
sketch5.addConstraint(Sketcher.Constraint("Tangent", 46, 2, 47, 1))
sketch5.addConstraint(Sketcher.Constraint("Tangent", 47, 2, 24, 1))
sketch5.addConstraint(Sketcher.Constraint("Coincident", 6, 3, 2, 3))
sketch5.addConstraint(Sketcher.Constraint("Coincident", 10, 3, 2, 3))
sketch5.addConstraint(Sketcher.Constraint("Coincident", 14, 3, 2, 3))
sketch5.addConstraint(Sketcher.Constraint("Coincident", 18, 3, 2, 3))
sketch5.addConstraint(Sketcher.Constraint("Coincident", 22, 3, 2, 3))
sketch5.addConstraint(Sketcher.Constraint("Coincident", 25, 3, 2, 3))
sketch5.addConstraint(Sketcher.Constraint("Coincident", 27, 3, 4, 3))
sketch5.addConstraint(Sketcher.Constraint("Coincident", 29, 3, 2, 3))
sketch5.addConstraint(Sketcher.Constraint("Coincident", 31, 3, 0, 3))
sketch5.addConstraint(Sketcher.Constraint("Coincident", 33, 3, 2, 3))
sketch5.addConstraint(Sketcher.Constraint("Coincident", 35, 3, 20, 3))
sketch5.addConstraint(Sketcher.Constraint("Coincident", 37, 3, 2, 3))
sketch5.addConstraint(Sketcher.Constraint("Coincident", 39, 3, 16, 3))
sketch5.addConstraint(Sketcher.Constraint("Coincident", 41, 3, 2, 3))
sketch5.addConstraint(Sketcher.Constraint("Coincident", 43, 3, 12, 3))
sketch5.addConstraint(Sketcher.Constraint("Coincident", 45, 3, 2, 3))
sketch5.addConstraint(Sketcher.Constraint("Coincident", 47, 3, 8, 3))
sketch5.addConstraint(Sketcher.Constraint("Equal", 0, 4))
sketch5.addConstraint(Sketcher.Constraint("Equal", 2, 6))
sketch5.addConstraint(Sketcher.Constraint("Equal", 4, 8))
sketch5.addConstraint(Sketcher.Constraint("Equal", 6, 10))
sketch5.addConstraint(Sketcher.Constraint("Equal", 8, 12))
sketch5.addConstraint(Sketcher.Constraint("Equal", 10, 14))
sketch5.addConstraint(Sketcher.Constraint("Equal", 12, 16))
sketch5.addConstraint(Sketcher.Constraint("Equal", 14, 18))
sketch5.addConstraint(Sketcher.Constraint("Equal", 16, 20))
sketch5.addConstraint(Sketcher.Constraint("Equal", 18, 22))
sketch5.addConstraint(Sketcher.Constraint("Equal", 25, 29))
sketch5.addConstraint(Sketcher.Constraint("Equal", 27, 31))
sketch5.addConstraint(Sketcher.Constraint("Equal", 29, 33))
sketch5.addConstraint(Sketcher.Constraint("Equal", 31, 35))
sketch5.addConstraint(Sketcher.Constraint("Equal", 33, 37))
sketch5.addConstraint(Sketcher.Constraint("Equal", 35, 39))
sketch5.addConstraint(Sketcher.Constraint("Equal", 37, 41))
sketch5.addConstraint(Sketcher.Constraint("Equal", 39, 43))
sketch5.addConstraint(Sketcher.Constraint("Equal", 41, 45))
sketch5.addConstraint(Sketcher.Constraint("Equal", 43, 47))
sketch5.addConstraint(Sketcher.Constraint("Parallel", 3, 5))
sketch5.addConstraint(Sketcher.Constraint("Perpendicular", 5, 7))
sketch5.addConstraint(Sketcher.Constraint("Parallel", 7, 9))
sketch5.addConstraint(Sketcher.Constraint("Parallel", 1, 11))
sketch5.addConstraint(Sketcher.Constraint("Parallel", 11, 13))
sketch5.addConstraint(Sketcher.Constraint("Perpendicular", 9, 15))
sketch5.addConstraint(Sketcher.Constraint("Parallel", 15, 17))
sketch5.addConstraint(Sketcher.Constraint("Perpendicular", 17, 19))
sketch5.addConstraint(Sketcher.Constraint("Parallel", 19, 21))
sketch5.addConstraint(Sketcher.Constraint("Parallel", 13, 23))
sketch5.addConstraint(Sketcher.Constraint("Parallel", 21, 24))
sketch5.addConstraint(Sketcher.Constraint("Perpendicular", 24, 26))
sketch5.addConstraint(Sketcher.Constraint("Parallel", 26, 28))
sketch5.addConstraint(Sketcher.Constraint("Parallel", 23, 30))
sketch5.addConstraint(Sketcher.Constraint("Parallel", 30, 32))
sketch5.addConstraint(Sketcher.Constraint("Perpendicular", 28, 34))
sketch5.addConstraint(Sketcher.Constraint("Parallel", 34, 36))
sketch5.addConstraint(Sketcher.Constraint("Perpendicular", 36, 38))
sketch5.addConstraint(Sketcher.Constraint("Parallel", 38, 40))
sketch5.addConstraint(Sketcher.Constraint("Parallel", 32, 42))
sketch5.addConstraint(Sketcher.Constraint("Parallel", 42, 44))
sketch5.addConstraint(Sketcher.Constraint("Perpendicular", 40, 46))
sketch5.addConstraint(Sketcher.Constraint("Equal", 1, 3))
sketch5.addConstraint(Sketcher.Constraint("Equal", 3, 5))
sketch5.addConstraint(Sketcher.Constraint("Equal", 7, 9))
sketch5.addConstraint(Sketcher.Constraint("Equal", 5, 11))
sketch5.addConstraint(Sketcher.Constraint("Equal", 11, 13))
sketch5.addConstraint(Sketcher.Constraint("Equal", 13, 15))
sketch5.addConstraint(Sketcher.Constraint("Equal", 15, 17))
sketch5.addConstraint(Sketcher.Constraint("Equal", 9, 19))
sketch5.addConstraint(Sketcher.Constraint("Equal", 19, 21))
sketch5.addConstraint(Sketcher.Constraint("Equal", 17, 23))
sketch5.addConstraint(Sketcher.Constraint("Radius", 2, Q("5 mm")))
sketch5.addConstraint(Sketcher.Constraint("Radius", 27, Q("1 mm")))
sketch5.addConstraint(Sketcher.Constraint("Radius", 0, Q("1.2 mm")))
sketch5.addConstraint(Sketcher.Constraint("Radius", 25, Q("4.8 mm")))
sketch5.addConstraint(Sketcher.Constraint("DistanceX", -1, 1, 18, 1, Q("28.773901 mm")))
sketch5.addConstraint(Sketcher.Constraint("DistanceX", -1, 1, 35, 2, Q("30.452701 mm")))
sketch5.addConstraint(Sketcher.Constraint("DistanceY", -1, 1, 36, 2, Q("22.260902 mm")))
sketch5.addConstraint(Sketcher.Constraint("DistanceX", -1, 1, 0, 3, Q("25.90383 mm")))
sketch5.addConstraint(Sketcher.Constraint("DistanceY", -1, 1, 0, 3, Q("17.789239 mm")))
sketch5.addConstraint(Sketcher.Constraint("DistanceY", -1, 1, 2, 3, Q("23.31749 mm")))
pocket2 = body.newObject("PartDesign::Pocket", "Pocket001")
pocket2.Profile = sketch5
pocket2.Length = 90
pocket2.Reversed = True

doc.recompute()
